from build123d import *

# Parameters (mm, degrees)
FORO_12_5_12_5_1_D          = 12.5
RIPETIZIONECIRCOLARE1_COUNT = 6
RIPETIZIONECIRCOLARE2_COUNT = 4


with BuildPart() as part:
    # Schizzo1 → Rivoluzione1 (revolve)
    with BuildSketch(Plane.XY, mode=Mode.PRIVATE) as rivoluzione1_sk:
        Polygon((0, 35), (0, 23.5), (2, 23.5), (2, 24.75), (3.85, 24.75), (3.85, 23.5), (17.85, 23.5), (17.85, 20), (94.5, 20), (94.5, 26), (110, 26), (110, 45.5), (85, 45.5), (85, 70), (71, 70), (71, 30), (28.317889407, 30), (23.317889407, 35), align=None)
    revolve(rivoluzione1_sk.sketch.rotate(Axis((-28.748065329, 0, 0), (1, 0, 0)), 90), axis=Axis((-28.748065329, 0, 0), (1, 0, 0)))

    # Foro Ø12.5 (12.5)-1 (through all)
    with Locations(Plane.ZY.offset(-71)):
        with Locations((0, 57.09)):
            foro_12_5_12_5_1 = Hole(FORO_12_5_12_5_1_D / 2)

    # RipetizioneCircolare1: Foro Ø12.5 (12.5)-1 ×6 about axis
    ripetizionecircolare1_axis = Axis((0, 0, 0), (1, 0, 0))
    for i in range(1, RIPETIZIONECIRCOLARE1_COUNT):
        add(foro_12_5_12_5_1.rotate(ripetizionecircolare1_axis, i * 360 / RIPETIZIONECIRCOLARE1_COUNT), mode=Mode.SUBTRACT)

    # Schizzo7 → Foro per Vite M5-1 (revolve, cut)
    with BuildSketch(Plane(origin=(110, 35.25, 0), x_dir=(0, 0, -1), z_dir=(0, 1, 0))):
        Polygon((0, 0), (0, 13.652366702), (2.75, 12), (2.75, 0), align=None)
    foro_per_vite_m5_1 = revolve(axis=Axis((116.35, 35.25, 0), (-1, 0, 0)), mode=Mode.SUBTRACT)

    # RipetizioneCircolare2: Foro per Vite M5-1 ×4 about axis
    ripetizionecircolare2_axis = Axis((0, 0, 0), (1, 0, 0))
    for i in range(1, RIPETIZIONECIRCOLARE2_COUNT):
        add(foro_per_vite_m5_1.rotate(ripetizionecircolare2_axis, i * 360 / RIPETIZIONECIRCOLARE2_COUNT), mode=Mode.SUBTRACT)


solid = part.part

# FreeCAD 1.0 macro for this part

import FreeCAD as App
import Part
import Sketcher
from FreeCAD import Vector
Q = App.Units.Quantity

doc = App.newDocument("Part")
body = doc.addObject("PartDesign::Body", "Body")

# Sketch on XY plane
sketch1 = body.newObject("Sketcher::SketchObject", "Sketch")
sketch1.AttachmentSupport = (doc.getObject("XY_Plane"), [""])
sketch1.MapMode = "FlatFace"
sketch1.addGeometry([
    Part.LineSegment(Vector(0, 35, 0), Vector(0, 23.5, 0)),  # 0
    Part.LineSegment(Vector(0, 23.5, 0), Vector(2, 23.5, 0)),  # 1
    Part.LineSegment(Vector(2, 23.5, 0), Vector(2, 24.75, 0)),  # 2
    Part.LineSegment(Vector(2, 24.75, 0), Vector(3.85, 24.75, 0)),  # 3
    Part.LineSegment(Vector(3.85, 24.75, 0), Vector(3.85, 23.5, 0)),  # 4
    Part.LineSegment(Vector(3.85, 23.5, 0), Vector(17.85, 23.5, 0)),  # 5
    Part.LineSegment(Vector(17.85, 23.5, 0), Vector(17.85, 20, 0)),  # 6
    Part.LineSegment(Vector(17.85, 20, 0), Vector(94.5, 20, 0)),  # 7
    Part.LineSegment(Vector(94.5, 20, 0), Vector(94.5, 26, 0)),  # 8
    Part.LineSegment(Vector(94.5, 26, 0), Vector(110, 26, 0)),  # 9
    Part.LineSegment(Vector(110, 26, 0), Vector(110, 45.5, 0)),  # 10
    Part.LineSegment(Vector(110, 45.5, 0), Vector(85, 45.5, 0)),  # 11
    Part.LineSegment(Vector(85, 45.5, 0), Vector(85, 70, 0)),  # 12
    Part.LineSegment(Vector(85, 70, 0), Vector(71, 70, 0)),  # 13
    Part.LineSegment(Vector(71, 70, 0), Vector(71, 30, 0)),  # 14
    Part.LineSegment(Vector(71, 30, 0), Vector(28.317889, 30, 0)),  # 15
    Part.LineSegment(Vector(28.317889, 30, 0), Vector(23.317889, 35, 0)),  # 16
    Part.LineSegment(Vector(23.317889, 35, 0), Vector(0, 35, 0)),  # 17
], False)
sketch1.addConstraint([
    Sketcher.Constraint("Coincident", 0, 2, 1, 1),
    Sketcher.Constraint("Coincident", 1, 2, 2, 1),
    Sketcher.Constraint("Coincident", 2, 2, 3, 1),
    Sketcher.Constraint("Coincident", 3, 2, 4, 1),
    Sketcher.Constraint("Coincident", 4, 2, 5, 1),
    Sketcher.Constraint("Coincident", 5, 2, 6, 1),
    Sketcher.Constraint("Coincident", 6, 2, 7, 1),
    Sketcher.Constraint("Coincident", 7, 2, 8, 1),
    Sketcher.Constraint("Coincident", 8, 2, 9, 1),
    Sketcher.Constraint("Coincident", 9, 2, 10, 1),
    Sketcher.Constraint("Coincident", 10, 2, 11, 1),
    Sketcher.Constraint("Coincident", 11, 2, 12, 1),
    Sketcher.Constraint("Coincident", 12, 2, 13, 1),
    Sketcher.Constraint("Coincident", 13, 2, 14, 1),
    Sketcher.Constraint("Coincident", 14, 2, 15, 1),
    Sketcher.Constraint("Coincident", 15, 2, 16, 1),
    Sketcher.Constraint("Coincident", 16, 2, 17, 1),
    Sketcher.Constraint("Coincident", 17, 2, 0, 1),
    Sketcher.Constraint("Vertical", 0),
    Sketcher.Constraint("Horizontal", 1),
    Sketcher.Constraint("Vertical", 2),
    Sketcher.Constraint("Horizontal", 3),
    Sketcher.Constraint("Vertical", 4),
    Sketcher.Constraint("Horizontal", 5),
    Sketcher.Constraint("Vertical", 6),
    Sketcher.Constraint("Horizontal", 7),
    Sketcher.Constraint("Vertical", 8),
    Sketcher.Constraint("Horizontal", 9),
    Sketcher.Constraint("Vertical", 10),
    Sketcher.Constraint("Horizontal", 11),
    Sketcher.Constraint("Vertical", 12),
    Sketcher.Constraint("Horizontal", 13),
    Sketcher.Constraint("Vertical", 14),
    Sketcher.Constraint("Horizontal", 15),
    Sketcher.Constraint("Horizontal", 17),
    Sketcher.Constraint("PointOnObject", 0, 2, -2),
    Sketcher.Constraint("Horizontal", 1, 2, 4, 2),
    Sketcher.Constraint("Equal", 5, 13),
    Sketcher.Constraint("DistanceX", 1, 1, 1, 2, Q("2 mm")),
    Sketcher.Constraint("DistanceX", 5, 1, 5, 2, Q("14 mm")),
    Sketcher.Constraint("DistanceX", 11, 2, 11, 1, Q("25 mm")),
    Sketcher.Constraint("DistanceY", 8, 1, 8, 2, Q("6 mm")),
    Sketcher.Constraint("DistanceY", 14, 2, 14, 1, Q("40 mm")),
    Sketcher.Constraint("Angle", 16, Q("135 deg")),
    Sketcher.Constraint("DistanceX", 9, 1, 9, 2, Q("15.5 mm")),
    Sketcher.Constraint("DistanceY", 0, 2, 0, 1, Q("11.5 mm")),
    Sketcher.Constraint("DistanceY", 6, 2, 6, 1, Q("3.5 mm")),
    Sketcher.Constraint("DistanceY", 10, 1, 10, 2, Q("19.5 mm")),
    Sketcher.Constraint("DistanceY", 12, 1, 12, 2, Q("24.5 mm")),
    Sketcher.Constraint("DistanceY", -1, 1, 6, 2, Q("20 mm")),
    Sketcher.Constraint("DistanceX", -1, 1, 9, 2, Q("110 mm")),
    Sketcher.Constraint("DistanceX", 3, 1, 3, 2, Q("1.85 mm")),
    Sketcher.Constraint("DistanceY", 2, 1, 2, 2, Q("1.25 mm")),
    Sketcher.Constraint("DistanceX", 15, 2, 15, 1, Q("42.682111 mm")),
])
revolution = body.newObject("PartDesign::Revolution", "Revolution")
revolution.Profile = sketch1
revolution.ReferenceAxis = (sketch1, ["H_Axis"])
revolution.Angle = 360

# Sketch on YZ plane
sketch2 = body.newObject("Sketcher::SketchObject", "Sketch001")
sketch2.AttachmentSupport = (doc.getObject("YZ_Plane"), [""])
sketch2.MapMode = "FlatFace"
sketch2.AttachmentOffset = App.Placement(Vector(0, 0, 71), App.Rotation())
sketch2.addGeometry(Part.Circle(Vector(57.09, 0, 0), Vector(0, 0, 1), 6.25), False)
sketch2.addConstraint([
    Sketcher.Constraint("PointOnObject", 0, 3, -1),
    Sketcher.Constraint("Diameter", 0, Q("12.5 mm")),
    Sketcher.Constraint("DistanceX", -1, 1, 0, 3, Q("57.09 mm")),
])
doc.recompute()
hole = body.newObject("PartDesign::Hole", "Hole")
hole.Profile = sketch2
hole.ThreadType = "None"
hole.Diameter = 12.5
hole.DepthType = "ThroughAll"
hole.Reversed = True
doc.recompute()

polarpattern = body.newObject("PartDesign::PolarPattern", "PolarPattern")
polarpattern.Originals = [hole]
polarpattern.Axis = (doc.getObject("X_Axis"), [""])
polarpattern.Angle = 360
polarpattern.Occurrences = 6
body.Tip = polarpattern

# Sketch on XZ plane
sketch3 = body.newObject("Sketcher::SketchObject", "Sketch002")
sketch3.AttachmentSupport = (doc.getObject("XZ_Plane"), [""])
sketch3.MapMode = "FlatFace"
sketch3.AttachmentOffset = App.Placement(Vector(0, 0, -35.25), App.Rotation())
sketch3.addGeometry([
    Part.LineSegment(Vector(96.347633, 0, 0), Vector(110, 0, 0)),
    Part.LineSegment(Vector(110, 0, 0), Vector(110, -2.75, 0)),
    Part.LineSegment(Vector(110, -2.75, 0), Vector(98, -2.75, 0)),
    Part.LineSegment(Vector(98, -2.75, 0), Vector(96.347633, 0, 0)),
], False)
sketch3.addConstraint([
    Sketcher.Constraint("Coincident", 0, 2, 1, 1),
    Sketcher.Constraint("Coincident", 1, 2, 2, 1),
    Sketcher.Constraint("Coincident", 2, 2, 3, 1),
    Sketcher.Constraint("Coincident", 3, 2, 0, 1),
    Sketcher.Constraint("Horizontal", 0),
    Sketcher.Constraint("Vertical", 1),
    Sketcher.Constraint("Horizontal", 2),
    Sketcher.Constraint("PointOnObject", 0, 2, -1),
    Sketcher.Constraint("DistanceX", 2, 2, 2, 1, Q("12 mm")),
    Sketcher.Constraint("Angle", 3, Q("121 deg")),
    Sketcher.Constraint("DistanceX", -1, 1, 0, 2, Q("110 mm")),
    Sketcher.Constraint("DistanceY", 1, 2, 1, 1, Q("2.75 mm")),
])
groove = body.newObject("PartDesign::Groove", "Groove")
groove.Profile = sketch3
groove.ReferenceAxis = (sketch3, ["H_Axis"])
groove.Angle = 360
doc.recompute()

polarpattern2 = body.newObject("PartDesign::PolarPattern", "PolarPattern001")
polarpattern2.Originals = [groove]
polarpattern2.Axis = (doc.getObject("X_Axis"), [""])
polarpattern2.Angle = 360
polarpattern2.Occurrences = 4
body.Tip = polarpattern2

doc.recompute()
